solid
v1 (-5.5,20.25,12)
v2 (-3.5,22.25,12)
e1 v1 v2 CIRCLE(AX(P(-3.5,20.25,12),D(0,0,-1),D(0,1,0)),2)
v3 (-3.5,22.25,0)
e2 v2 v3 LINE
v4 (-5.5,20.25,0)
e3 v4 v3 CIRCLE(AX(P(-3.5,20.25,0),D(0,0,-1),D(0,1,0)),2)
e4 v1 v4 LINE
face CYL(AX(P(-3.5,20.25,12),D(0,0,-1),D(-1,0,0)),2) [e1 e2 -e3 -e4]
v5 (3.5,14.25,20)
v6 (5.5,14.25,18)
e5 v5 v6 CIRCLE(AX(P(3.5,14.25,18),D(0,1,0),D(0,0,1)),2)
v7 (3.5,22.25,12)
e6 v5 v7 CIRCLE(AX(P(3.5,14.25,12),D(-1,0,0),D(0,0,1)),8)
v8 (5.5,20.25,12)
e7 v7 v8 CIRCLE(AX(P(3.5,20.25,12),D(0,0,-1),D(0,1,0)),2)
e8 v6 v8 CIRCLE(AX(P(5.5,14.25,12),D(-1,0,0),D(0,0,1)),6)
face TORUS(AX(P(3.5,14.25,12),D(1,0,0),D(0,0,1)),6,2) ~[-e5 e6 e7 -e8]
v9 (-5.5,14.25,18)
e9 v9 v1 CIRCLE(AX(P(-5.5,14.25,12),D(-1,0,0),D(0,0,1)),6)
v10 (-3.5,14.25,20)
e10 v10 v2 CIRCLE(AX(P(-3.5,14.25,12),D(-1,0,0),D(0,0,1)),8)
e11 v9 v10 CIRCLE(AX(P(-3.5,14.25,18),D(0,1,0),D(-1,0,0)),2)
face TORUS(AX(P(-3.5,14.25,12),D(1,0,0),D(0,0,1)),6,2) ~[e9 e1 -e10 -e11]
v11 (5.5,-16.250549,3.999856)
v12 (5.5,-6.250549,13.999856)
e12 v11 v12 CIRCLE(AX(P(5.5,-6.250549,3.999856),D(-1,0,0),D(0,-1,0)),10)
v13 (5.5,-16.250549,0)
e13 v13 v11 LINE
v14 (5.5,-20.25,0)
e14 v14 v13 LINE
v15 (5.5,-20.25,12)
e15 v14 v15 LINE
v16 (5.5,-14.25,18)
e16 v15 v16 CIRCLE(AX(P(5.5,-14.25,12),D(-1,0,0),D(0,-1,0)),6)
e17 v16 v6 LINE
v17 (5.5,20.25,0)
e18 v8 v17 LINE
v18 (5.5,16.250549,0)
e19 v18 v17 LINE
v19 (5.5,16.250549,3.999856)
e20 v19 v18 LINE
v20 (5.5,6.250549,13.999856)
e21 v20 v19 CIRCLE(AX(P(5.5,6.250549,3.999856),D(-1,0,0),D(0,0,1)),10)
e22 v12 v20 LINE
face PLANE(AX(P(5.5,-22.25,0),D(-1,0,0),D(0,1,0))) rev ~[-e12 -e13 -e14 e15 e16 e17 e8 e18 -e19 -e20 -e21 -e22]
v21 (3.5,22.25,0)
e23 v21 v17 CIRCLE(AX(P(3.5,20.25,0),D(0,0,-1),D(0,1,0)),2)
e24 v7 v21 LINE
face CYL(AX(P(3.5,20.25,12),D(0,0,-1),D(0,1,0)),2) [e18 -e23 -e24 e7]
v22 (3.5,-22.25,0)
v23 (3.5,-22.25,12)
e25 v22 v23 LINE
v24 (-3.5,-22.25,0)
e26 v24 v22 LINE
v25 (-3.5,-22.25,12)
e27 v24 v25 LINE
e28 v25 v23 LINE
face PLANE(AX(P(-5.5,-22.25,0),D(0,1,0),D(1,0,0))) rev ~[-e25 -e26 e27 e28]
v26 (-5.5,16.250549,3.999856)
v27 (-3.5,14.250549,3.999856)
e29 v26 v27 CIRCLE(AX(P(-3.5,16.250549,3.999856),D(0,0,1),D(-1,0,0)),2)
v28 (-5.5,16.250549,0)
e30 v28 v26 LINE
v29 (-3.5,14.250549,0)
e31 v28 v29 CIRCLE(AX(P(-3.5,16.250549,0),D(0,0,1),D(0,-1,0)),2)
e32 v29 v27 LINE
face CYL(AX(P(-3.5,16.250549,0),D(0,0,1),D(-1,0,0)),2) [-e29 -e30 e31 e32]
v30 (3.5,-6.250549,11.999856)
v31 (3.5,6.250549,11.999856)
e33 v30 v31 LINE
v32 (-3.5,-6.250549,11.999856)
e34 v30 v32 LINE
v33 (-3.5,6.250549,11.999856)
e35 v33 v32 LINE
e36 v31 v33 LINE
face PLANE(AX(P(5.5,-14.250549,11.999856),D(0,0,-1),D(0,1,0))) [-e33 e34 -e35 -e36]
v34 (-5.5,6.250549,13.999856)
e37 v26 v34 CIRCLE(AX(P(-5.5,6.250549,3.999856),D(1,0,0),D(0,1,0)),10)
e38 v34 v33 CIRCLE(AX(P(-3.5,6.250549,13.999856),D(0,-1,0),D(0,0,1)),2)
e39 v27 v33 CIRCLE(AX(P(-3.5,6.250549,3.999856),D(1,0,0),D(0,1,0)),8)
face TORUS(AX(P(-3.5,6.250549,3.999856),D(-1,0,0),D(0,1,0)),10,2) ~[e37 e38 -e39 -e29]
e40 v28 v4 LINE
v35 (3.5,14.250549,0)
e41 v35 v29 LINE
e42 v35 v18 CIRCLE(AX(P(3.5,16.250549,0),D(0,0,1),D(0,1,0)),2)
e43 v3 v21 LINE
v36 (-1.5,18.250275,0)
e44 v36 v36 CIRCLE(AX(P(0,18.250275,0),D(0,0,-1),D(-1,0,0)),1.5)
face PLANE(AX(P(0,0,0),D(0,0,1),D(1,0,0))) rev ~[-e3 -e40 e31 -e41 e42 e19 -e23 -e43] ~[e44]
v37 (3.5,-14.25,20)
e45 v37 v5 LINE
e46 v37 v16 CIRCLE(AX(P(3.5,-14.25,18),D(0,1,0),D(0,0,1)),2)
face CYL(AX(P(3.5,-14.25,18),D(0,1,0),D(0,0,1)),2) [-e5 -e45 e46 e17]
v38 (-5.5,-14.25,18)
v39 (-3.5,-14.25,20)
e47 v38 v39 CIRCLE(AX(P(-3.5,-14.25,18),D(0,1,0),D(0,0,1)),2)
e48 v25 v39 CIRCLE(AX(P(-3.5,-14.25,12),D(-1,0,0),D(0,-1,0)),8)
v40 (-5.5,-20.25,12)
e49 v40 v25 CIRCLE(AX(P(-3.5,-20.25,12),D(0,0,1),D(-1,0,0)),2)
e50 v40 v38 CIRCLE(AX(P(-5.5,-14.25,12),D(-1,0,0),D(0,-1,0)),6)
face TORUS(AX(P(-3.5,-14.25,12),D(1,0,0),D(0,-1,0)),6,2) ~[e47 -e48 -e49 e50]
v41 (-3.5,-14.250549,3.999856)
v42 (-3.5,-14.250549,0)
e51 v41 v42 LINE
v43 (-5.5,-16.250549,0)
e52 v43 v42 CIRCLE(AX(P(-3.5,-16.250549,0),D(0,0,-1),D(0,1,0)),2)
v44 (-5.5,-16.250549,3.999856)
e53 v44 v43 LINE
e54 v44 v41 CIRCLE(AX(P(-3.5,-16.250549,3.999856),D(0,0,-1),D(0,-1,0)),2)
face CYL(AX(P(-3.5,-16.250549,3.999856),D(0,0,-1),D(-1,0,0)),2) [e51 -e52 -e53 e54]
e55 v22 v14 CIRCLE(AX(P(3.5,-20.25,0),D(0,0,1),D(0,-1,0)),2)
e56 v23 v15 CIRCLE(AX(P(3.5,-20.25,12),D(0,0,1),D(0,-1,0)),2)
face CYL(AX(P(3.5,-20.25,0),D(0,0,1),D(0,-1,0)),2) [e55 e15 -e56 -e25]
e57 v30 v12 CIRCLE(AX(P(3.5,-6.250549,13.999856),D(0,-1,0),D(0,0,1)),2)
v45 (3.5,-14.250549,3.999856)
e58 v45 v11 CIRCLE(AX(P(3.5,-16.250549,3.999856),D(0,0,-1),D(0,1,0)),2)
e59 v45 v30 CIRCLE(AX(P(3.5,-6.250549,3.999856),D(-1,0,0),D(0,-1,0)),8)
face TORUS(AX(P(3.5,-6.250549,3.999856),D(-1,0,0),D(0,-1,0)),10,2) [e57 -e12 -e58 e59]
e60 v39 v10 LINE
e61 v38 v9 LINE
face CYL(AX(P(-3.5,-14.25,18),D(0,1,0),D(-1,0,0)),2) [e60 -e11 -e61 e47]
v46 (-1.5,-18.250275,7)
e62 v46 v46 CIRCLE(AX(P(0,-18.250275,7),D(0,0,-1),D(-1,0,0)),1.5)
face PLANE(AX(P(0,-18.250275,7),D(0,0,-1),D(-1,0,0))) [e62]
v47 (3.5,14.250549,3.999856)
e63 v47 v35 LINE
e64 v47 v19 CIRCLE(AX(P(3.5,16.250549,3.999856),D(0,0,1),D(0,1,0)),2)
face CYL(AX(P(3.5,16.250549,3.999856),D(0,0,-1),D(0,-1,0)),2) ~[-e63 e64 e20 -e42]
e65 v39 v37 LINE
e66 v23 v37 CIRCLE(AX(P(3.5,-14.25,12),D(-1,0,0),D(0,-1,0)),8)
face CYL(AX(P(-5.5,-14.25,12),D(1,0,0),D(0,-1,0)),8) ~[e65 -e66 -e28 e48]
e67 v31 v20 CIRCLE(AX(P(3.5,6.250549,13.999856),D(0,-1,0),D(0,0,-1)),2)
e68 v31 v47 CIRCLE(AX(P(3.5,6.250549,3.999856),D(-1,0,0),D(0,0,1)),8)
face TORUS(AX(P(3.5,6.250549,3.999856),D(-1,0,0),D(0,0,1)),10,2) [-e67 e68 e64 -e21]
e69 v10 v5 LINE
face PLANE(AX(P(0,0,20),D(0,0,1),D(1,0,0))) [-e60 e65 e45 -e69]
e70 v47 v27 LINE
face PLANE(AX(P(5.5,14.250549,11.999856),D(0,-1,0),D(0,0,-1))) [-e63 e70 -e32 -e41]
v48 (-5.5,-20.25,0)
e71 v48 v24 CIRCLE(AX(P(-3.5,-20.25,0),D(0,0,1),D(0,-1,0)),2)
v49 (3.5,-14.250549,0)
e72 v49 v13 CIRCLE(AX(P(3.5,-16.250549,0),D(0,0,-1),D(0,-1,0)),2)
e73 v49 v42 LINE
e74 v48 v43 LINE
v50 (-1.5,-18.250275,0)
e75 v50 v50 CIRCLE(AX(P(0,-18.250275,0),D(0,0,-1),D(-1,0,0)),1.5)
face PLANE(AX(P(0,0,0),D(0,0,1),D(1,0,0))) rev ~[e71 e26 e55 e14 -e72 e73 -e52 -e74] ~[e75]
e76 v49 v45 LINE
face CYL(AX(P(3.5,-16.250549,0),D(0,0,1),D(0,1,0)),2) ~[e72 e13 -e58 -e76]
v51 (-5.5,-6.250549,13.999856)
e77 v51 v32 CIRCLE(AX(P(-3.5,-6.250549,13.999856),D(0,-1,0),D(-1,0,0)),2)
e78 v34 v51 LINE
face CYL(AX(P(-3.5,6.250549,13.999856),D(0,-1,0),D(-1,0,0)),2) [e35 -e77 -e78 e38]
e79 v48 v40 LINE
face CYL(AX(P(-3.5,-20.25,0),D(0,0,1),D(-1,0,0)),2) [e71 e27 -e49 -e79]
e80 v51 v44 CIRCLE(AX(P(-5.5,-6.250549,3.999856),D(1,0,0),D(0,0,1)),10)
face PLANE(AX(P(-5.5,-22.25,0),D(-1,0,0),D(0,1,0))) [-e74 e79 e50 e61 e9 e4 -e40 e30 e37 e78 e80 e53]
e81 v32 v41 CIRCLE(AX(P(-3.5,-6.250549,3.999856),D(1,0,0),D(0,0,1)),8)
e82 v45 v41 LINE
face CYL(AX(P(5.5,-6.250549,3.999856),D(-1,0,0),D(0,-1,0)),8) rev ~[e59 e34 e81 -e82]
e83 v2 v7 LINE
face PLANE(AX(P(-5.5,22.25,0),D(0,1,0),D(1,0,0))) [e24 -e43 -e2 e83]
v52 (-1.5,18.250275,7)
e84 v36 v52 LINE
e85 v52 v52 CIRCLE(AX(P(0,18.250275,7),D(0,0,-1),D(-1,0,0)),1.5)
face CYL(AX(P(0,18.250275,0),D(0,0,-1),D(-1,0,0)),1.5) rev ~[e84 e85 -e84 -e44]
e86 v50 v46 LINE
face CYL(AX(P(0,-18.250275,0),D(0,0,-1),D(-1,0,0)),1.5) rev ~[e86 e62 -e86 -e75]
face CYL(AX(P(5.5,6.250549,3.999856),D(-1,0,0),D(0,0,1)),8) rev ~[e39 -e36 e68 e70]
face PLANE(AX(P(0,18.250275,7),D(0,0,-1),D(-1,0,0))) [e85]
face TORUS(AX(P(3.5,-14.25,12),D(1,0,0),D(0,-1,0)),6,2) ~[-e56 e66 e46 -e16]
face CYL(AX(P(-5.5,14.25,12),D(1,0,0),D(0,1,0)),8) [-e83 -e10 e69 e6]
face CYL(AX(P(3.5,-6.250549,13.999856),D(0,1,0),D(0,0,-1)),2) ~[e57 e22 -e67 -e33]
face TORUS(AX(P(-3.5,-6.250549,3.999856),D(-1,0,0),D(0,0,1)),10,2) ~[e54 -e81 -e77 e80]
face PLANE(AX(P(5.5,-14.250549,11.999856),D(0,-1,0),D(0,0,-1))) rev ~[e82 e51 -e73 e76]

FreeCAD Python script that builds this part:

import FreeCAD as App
import Part
import Sketcher
from FreeCAD import Vector
Q = App.Units.Quantity


def edges_at(feature, points):
    """Names of the edges that pass closest to the given points."""
    edges = feature.Shape.Edges
    near = lambda p: min(range(len(edges)), key=lambda i: edges[i].distToShape(Part.Vertex(*p))[0])
    return sorted({f"Edge{near(p) + 1}" for p in points})

doc = App.newDocument("Part")
body = doc.addObject("PartDesign::Body", "Body")

sketch1 = body.newObject("Sketcher::SketchObject", "Sketch")
sketch1.AttachmentSupport = (doc.getObject("XY_Plane"), [""])
sketch1.MapMode = "FlatFace"
sketch1.addGeometry(Part.LineSegment(Vector(-6, 22, 0), Vector(-6, -22, 0)), False)
sketch1.addGeometry(Part.LineSegment(Vector(-6, -22, 0), Vector(6, -22, 0)), False)
sketch1.addGeometry(Part.LineSegment(Vector(6, -22, 0), Vector(6, 22, 0)), False)
sketch1.addGeometry(Part.LineSegment(Vector(6, 22, 0), Vector(-6, 22, 0)), False)
sketch1.addConstraint(Sketcher.Constraint("Coincident", 0, 2, 1, 1))
sketch1.addConstraint(Sketcher.Constraint("Coincident", 1, 2, 2, 1))
sketch1.addConstraint(Sketcher.Constraint("Coincident", 2, 2, 3, 1))
sketch1.addConstraint(Sketcher.Constraint("Coincident", 3, 2, 0, 1))
sketch1.addConstraint(Sketcher.Constraint("Vertical", 0))
sketch1.addConstraint(Sketcher.Constraint("Horizontal", 1))
sketch1.addConstraint(Sketcher.Constraint("Vertical", 2))
sketch1.addConstraint(Sketcher.Constraint("Horizontal", 3))
sketch1.addConstraint(Sketcher.Constraint("Symmetric", 0, 2, 2, 2, -1, 1))
sketch1.addConstraint(Sketcher.Constraint("DistanceX", 1, 1, 1, 2, Q("11 mm")))
sketch1.addConstraint(Sketcher.Constraint("DistanceY", 0, 2, 0, 1, Q("44.5 mm")))
pad1 = body.newObject("PartDesign::Pad", "Pad")
pad1.Profile = sketch1
pad1.Length = 20
doc.recompute()

fillet = body.newObject("PartDesign::Fillet", "Fillet")
fillet.Base = (pad1, edges_at(pad1, [(0, -22.25, 20), (0, 22.25, 20)]))
fillet.Radius = 8

sketch2 = body.newObject("Sketcher::SketchObject", "Sketch001")
sketch2.AttachmentSupport = (doc.getObject("YZ_Plane"), [""])
sketch2.MapMode = "FlatFace"
sketch2.AttachmentOffset = App.Placement(Vector(0, 0, 5.5), App.Rotation())
sketch2.addGeometry(Part.LineSegment(Vector(14, 12, 0), Vector(-14, 12, 0)), False)
sketch2.addGeometry(Part.LineSegment(Vector(-14, 12, 0), Vector(-14, 0, 0)), False)
sketch2.addGeometry(Part.LineSegment(Vector(-14, 0, 0), Vector(14, 0, 0)), False)
sketch2.addGeometry(Part.LineSegment(Vector(14, 0, 0), Vector(14, 12, 0)), False)
sketch2.addConstraint(Sketcher.Constraint("Coincident", 0, 2, 1, 1))
sketch2.addConstraint(Sketcher.Constraint("Coincident", 1, 2, 2, 1))
sketch2.addConstraint(Sketcher.Constraint("Coincident", 2, 2, 3, 1))
sketch2.addConstraint(Sketcher.Constraint("Coincident", 3, 2, 0, 1))
sketch2.addConstraint(Sketcher.Constraint("Horizontal", 0))
sketch2.addConstraint(Sketcher.Constraint("Vertical", 1))
sketch2.addConstraint(Sketcher.Constraint("Horizontal", 2))
sketch2.addConstraint(Sketcher.Constraint("Vertical", 3))
sketch2.addConstraint(Sketcher.Constraint("Symmetric", 1, 2, 2, 2, -1, 1))
sketch2.addConstraint(Sketcher.Constraint("DistanceX", 0, 2, 0, 1, Q("28.501099 mm")))
sketch2.addConstraint(Sketcher.Constraint("DistanceY", 1, 2, 1, 1, Q("11.999856 mm")))
pocket1 = body.newObject("PartDesign::Pocket", "Pocket")
pocket1.Profile = sketch2
pocket1.Length = 20
doc.recompute()

fillet2 = body.newObject("PartDesign::Fillet", "Fillet001")
fillet2.Base = (pocket1, edges_at(pocket1, [(0, -14.251, 12), (0, 14.251, 12)]))
fillet2.Radius = 8

sketch3 = body.newObject("Sketcher::SketchObject", "Sketch002")
sketch3.AttachmentSupport = (doc.getObject("XY_Plane"), [""])
sketch3.MapMode = "FlatFace"
sketch3.addGeometry(Part.Circle(Vector(0, 18.3, 0), Vector(0, 0, 1), 1.5), False)
sketch3.addGeometry(Part.Circle(Vector(0, -18.3, 0), Vector(0, 0, 1), 1.5), False)
sketch3.addConstraint(Sketcher.Constraint("Equal", 0, 1))
sketch3.addConstraint(Sketcher.Constraint("Symmetric", 0, 3, 1, 3, -1, 1))
sketch3.addConstraint(Sketcher.Constraint("PointOnObject", 0, 3, -2))
sketch3.addConstraint(Sketcher.Constraint("Diameter", 0, Q("3 mm")))
sketch3.addConstraint(Sketcher.Constraint("DistanceY", 1, 3, 0, 3, Q("36.500549 mm")))
pocket2 = body.newObject("PartDesign::Pocket", "Pocket001")
pocket2.Profile = sketch3
pocket2.Length = 7
pocket2.Reversed = True
doc.recompute()

fillet3 = body.newObject("PartDesign::Fillet", "Fillet002")
fillet3.Base = (pocket2, edges_at(pocket2, [
    (5.5, 0, 20),
    (-5.5, 0, 20),
    (5.5, 22.25, 6),
    (5.5, -22.25, 6),
    (5.5, 19.907, 17.657),
    (5.5, -19.907, 17.657),
    (-5.5, -22.25, 6),
    (-5.5, 22.25, 6),
    (-5.5, 19.907, 17.657),
    (-5.5, -19.907, 17.657),
    (-5.5, 14.251, 2),
    (5.5, 14.251, 2),
    (5.5, -14.251, 2),
    (-5.5, -14.251, 2),
    (5.5, 0, 12),
    (-5.5, 0, 12),
    (5.5, -11.907, 9.657),
    (-5.5, -11.907, 9.657),
    (5.5, 11.907, 9.657),
    (-5.5, 11.907, 9.657),
]))
fillet3.Radius = 2

doc.recompute()
